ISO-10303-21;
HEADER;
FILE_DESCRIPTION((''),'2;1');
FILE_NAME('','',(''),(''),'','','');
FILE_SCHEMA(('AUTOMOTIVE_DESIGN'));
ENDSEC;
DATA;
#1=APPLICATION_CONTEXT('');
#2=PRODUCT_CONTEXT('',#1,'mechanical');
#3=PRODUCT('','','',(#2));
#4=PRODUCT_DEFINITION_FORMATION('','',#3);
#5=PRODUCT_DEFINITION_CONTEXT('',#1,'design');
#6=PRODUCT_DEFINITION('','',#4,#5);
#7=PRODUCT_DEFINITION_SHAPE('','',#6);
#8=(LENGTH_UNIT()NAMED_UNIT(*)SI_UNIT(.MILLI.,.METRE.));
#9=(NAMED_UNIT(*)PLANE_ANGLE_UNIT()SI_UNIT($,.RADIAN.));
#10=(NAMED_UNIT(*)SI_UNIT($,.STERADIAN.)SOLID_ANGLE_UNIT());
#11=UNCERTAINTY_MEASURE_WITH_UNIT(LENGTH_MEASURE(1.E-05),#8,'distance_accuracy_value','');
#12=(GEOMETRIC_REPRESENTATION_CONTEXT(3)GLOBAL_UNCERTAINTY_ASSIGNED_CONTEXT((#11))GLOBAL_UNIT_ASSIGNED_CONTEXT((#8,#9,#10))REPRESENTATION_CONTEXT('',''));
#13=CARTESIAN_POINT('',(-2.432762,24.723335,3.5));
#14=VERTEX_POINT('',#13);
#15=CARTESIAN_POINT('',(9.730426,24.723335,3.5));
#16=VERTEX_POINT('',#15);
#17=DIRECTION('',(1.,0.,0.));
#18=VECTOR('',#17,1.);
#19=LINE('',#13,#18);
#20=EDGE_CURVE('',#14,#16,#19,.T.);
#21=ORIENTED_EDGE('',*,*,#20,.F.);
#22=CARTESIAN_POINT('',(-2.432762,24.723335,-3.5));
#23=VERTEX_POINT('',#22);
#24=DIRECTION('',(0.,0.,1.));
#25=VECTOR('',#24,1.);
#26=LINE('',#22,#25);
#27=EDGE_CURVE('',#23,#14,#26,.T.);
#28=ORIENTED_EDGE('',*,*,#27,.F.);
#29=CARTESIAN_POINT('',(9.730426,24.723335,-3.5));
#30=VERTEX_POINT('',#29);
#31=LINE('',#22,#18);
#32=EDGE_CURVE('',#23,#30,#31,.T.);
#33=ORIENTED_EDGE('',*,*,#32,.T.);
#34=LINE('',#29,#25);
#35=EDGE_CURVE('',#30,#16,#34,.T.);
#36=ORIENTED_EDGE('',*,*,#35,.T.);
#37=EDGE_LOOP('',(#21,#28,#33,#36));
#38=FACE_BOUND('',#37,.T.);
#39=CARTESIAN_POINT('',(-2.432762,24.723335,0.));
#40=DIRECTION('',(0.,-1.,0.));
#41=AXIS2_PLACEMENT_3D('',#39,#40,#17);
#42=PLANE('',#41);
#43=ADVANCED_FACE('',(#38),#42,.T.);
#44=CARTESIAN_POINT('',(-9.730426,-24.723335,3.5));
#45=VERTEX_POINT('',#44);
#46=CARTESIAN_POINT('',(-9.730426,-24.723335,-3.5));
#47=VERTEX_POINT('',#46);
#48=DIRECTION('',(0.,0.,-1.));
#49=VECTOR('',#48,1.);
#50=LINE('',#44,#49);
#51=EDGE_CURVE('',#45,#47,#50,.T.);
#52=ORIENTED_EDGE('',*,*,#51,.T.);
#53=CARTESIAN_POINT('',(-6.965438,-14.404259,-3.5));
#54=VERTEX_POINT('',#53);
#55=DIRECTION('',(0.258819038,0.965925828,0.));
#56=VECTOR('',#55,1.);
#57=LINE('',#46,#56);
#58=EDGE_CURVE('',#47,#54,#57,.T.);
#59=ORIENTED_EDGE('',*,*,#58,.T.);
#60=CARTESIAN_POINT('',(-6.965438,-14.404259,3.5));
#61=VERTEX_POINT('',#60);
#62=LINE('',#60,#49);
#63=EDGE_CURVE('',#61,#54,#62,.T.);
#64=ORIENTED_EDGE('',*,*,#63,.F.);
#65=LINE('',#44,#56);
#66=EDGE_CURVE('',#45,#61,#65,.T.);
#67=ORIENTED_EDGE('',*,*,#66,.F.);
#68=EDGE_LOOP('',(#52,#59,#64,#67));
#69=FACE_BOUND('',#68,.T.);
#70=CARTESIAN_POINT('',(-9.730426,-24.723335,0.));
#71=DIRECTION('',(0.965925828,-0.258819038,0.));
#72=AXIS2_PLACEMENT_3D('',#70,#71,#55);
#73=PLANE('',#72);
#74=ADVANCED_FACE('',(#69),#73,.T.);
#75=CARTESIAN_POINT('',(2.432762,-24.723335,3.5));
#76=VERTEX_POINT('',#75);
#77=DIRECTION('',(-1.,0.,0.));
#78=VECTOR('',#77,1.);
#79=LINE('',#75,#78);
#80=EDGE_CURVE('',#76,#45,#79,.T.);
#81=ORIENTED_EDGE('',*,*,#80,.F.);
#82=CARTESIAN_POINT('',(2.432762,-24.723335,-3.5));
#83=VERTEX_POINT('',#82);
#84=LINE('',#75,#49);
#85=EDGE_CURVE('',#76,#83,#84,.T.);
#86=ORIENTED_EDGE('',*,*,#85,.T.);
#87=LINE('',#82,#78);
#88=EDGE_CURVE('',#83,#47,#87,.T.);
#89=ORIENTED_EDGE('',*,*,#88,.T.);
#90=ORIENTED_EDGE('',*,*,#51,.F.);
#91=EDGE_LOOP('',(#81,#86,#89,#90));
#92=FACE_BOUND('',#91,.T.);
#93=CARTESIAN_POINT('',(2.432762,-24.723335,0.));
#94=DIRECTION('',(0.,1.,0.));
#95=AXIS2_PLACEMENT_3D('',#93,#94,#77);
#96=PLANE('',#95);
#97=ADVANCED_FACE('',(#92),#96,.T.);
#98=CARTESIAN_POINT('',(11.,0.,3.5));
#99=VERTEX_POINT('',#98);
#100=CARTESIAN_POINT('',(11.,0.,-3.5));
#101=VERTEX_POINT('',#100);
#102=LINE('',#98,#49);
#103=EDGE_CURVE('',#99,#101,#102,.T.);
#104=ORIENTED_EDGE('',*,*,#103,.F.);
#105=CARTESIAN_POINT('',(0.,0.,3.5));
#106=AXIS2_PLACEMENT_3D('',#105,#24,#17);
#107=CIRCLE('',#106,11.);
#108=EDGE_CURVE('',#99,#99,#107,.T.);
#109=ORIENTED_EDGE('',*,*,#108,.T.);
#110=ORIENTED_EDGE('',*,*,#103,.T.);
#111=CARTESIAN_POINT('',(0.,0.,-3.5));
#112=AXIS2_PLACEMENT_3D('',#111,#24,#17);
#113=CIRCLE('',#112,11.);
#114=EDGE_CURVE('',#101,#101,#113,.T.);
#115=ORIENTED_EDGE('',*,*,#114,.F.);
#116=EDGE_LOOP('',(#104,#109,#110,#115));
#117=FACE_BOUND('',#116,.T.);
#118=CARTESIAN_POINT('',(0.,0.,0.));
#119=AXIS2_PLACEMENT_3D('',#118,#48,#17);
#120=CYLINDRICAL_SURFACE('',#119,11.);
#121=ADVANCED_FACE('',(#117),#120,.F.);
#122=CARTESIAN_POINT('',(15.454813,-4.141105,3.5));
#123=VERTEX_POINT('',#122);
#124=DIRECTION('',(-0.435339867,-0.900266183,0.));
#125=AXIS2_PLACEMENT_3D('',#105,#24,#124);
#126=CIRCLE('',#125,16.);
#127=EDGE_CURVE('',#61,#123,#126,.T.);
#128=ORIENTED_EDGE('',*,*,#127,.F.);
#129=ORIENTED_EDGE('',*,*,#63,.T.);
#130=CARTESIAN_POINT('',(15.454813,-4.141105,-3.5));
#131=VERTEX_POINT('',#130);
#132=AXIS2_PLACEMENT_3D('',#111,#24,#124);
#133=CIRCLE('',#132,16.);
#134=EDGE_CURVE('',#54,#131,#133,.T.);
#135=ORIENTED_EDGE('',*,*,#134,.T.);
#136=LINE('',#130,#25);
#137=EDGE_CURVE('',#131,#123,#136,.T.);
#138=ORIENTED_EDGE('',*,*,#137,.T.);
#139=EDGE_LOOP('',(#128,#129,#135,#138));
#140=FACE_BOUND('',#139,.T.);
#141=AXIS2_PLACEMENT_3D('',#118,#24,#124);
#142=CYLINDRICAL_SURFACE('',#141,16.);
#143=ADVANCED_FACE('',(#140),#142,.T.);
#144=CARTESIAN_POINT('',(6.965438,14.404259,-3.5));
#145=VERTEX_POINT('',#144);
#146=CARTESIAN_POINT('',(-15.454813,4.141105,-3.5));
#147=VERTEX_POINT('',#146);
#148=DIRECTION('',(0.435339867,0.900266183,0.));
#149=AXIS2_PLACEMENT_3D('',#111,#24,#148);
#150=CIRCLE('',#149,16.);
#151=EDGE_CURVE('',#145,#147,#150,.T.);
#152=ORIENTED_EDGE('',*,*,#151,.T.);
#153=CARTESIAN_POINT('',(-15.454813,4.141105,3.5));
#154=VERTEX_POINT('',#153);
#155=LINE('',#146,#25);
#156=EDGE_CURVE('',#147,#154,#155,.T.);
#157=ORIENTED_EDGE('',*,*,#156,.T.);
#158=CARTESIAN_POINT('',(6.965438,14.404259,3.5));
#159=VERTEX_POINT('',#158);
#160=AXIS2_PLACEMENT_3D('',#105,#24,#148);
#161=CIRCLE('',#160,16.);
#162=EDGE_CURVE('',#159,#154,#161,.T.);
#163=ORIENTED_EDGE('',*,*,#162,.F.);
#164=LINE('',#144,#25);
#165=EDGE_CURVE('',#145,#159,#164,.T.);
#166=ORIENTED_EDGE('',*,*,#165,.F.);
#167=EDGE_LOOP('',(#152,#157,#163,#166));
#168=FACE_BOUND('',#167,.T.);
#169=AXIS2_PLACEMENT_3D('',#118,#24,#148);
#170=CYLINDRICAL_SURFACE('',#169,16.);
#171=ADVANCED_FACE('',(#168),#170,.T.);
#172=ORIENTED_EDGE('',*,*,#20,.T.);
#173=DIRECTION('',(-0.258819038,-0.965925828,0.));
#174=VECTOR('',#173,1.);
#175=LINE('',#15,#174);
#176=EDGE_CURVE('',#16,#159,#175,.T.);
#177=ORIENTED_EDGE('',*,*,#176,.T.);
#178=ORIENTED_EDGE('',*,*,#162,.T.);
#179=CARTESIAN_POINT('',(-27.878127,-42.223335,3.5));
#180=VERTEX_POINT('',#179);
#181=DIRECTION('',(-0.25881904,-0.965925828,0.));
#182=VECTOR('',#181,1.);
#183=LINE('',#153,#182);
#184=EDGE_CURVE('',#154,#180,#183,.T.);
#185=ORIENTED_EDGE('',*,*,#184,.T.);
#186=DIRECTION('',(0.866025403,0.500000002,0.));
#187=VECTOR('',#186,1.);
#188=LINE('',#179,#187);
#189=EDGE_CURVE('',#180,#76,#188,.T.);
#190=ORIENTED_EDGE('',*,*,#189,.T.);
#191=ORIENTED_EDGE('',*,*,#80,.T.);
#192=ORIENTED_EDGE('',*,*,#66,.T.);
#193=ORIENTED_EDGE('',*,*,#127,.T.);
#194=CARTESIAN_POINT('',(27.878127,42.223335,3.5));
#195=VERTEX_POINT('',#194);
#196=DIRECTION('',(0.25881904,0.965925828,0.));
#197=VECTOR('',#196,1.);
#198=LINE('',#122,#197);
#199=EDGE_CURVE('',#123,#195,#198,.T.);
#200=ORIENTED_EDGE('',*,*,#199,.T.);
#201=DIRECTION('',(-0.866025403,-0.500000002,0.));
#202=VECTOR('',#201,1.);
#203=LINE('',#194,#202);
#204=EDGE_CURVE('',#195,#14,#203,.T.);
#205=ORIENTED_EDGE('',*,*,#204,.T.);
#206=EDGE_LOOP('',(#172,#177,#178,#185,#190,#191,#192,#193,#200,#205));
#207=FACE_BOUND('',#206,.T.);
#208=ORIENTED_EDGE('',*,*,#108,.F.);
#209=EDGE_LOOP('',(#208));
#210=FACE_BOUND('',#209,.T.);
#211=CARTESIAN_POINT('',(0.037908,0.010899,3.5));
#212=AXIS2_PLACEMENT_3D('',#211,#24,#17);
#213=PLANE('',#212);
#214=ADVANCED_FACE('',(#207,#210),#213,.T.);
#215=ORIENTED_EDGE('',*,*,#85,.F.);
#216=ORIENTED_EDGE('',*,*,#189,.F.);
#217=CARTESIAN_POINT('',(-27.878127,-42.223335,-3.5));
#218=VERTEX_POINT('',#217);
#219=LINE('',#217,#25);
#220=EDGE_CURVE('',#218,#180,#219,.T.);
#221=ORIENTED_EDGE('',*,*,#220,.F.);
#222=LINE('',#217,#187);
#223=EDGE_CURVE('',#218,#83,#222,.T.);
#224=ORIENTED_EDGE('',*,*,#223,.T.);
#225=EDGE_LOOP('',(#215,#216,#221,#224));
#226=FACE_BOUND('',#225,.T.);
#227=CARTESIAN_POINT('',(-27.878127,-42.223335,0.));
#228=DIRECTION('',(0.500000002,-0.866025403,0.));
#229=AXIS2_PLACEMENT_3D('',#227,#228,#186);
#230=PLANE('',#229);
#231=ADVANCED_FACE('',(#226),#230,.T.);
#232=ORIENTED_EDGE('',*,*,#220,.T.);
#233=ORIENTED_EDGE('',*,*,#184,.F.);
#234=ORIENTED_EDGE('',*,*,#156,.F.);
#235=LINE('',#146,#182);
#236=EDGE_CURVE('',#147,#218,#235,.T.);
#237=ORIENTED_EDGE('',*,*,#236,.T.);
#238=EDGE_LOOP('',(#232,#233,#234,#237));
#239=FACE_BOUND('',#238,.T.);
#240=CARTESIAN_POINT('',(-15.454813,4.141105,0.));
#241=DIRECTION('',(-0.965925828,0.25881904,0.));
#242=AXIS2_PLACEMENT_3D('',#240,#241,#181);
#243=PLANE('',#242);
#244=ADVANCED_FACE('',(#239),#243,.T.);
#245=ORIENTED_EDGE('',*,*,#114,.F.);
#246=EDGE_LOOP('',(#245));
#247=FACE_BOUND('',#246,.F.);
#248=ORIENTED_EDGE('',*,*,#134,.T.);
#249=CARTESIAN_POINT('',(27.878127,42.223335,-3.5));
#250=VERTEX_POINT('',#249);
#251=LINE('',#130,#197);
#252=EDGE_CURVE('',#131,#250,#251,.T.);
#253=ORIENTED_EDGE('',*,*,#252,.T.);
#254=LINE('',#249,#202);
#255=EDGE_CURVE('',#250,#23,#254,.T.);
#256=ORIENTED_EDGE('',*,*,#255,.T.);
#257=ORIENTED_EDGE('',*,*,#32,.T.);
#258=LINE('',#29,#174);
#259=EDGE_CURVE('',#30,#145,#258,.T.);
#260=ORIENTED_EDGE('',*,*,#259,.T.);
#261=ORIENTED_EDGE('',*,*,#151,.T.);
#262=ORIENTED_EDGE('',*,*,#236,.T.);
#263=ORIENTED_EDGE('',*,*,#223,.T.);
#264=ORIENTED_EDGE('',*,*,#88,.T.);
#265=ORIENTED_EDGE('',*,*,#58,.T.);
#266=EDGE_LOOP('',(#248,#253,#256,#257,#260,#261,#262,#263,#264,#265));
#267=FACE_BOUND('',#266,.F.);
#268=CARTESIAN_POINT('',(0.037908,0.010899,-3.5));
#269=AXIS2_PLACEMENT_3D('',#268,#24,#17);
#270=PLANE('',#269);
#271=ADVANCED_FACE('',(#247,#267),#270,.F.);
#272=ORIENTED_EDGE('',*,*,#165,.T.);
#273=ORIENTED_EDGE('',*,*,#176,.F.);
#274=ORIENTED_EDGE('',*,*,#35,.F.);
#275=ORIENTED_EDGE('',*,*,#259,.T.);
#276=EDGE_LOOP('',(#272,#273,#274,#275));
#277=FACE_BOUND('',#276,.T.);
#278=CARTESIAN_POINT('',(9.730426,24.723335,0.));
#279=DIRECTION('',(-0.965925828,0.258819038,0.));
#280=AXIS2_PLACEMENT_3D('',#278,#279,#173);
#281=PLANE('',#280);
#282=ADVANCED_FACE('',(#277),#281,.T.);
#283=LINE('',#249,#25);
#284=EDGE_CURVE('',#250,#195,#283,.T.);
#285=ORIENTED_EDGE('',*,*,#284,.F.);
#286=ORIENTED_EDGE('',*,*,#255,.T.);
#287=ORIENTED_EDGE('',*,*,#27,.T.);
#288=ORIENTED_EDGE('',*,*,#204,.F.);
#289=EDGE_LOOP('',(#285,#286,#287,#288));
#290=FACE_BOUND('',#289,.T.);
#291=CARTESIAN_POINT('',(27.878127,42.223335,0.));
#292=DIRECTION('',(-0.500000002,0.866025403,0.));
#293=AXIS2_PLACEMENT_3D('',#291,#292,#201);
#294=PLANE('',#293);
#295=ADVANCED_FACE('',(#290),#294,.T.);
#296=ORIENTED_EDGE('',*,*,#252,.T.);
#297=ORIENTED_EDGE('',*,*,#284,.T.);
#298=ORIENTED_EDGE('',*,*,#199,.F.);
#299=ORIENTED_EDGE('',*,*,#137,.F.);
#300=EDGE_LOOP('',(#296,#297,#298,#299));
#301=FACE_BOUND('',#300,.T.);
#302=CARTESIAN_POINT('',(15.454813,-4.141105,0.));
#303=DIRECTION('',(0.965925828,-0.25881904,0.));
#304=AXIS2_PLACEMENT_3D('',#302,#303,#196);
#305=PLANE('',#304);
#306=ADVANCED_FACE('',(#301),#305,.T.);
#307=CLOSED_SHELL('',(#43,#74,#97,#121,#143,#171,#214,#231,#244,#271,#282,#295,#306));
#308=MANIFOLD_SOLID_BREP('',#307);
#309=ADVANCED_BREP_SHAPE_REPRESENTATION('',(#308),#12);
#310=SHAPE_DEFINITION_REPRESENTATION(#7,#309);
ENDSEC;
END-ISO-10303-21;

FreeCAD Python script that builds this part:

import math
import FreeCAD as App
import Part
import Sketcher
from FreeCAD import Vector
Q = App.Units.Quantity

doc = App.newDocument("Part")
body = doc.addObject("PartDesign::Body", "Body")

sketch1 = doc.addObject("Sketcher::SketchObject", "Sketch")
body.addObject(sketch1)
sketch1.AttachmentSupport = (doc.XY_Plane, [""])
sketch1.MapMode = "FlatFace"
sketch1.addGeometry([
    Part.ArcOfCircle(Part.Circle(Vector(0, 0, 0), Vector(0, 0, 1), 16), math.radians(-116), math.radians(-15)),
    Part.LineSegment(Vector(15, -4, 0), Vector(28, 42, 0)),
    Part.LineSegment(Vector(28, 42, 0), Vector(-2, 25, 0)),
    Part.LineSegment(Vector(-2, 25, 0), Vector(10, 25, 0)),
    Part.LineSegment(Vector(10, 25, 0), Vector(7, 14, 0)),
    Part.ArcOfCircle(Part.Circle(Vector(0, 0, 0), Vector(0, 0, 1), 16), math.radians(64), math.radians(165)),
    Part.LineSegment(Vector(-15, 4, 0), Vector(-28, -42, 0)),
    Part.LineSegment(Vector(-28, -42, 0), Vector(2, -25, 0)),
    Part.LineSegment(Vector(2, -25, 0), Vector(-10, -25, 0)),
    Part.LineSegment(Vector(-10, -25, 0), Vector(-7, -14, 0)),
    Part.Circle(Vector(0, 0, 0), Vector(0, 0, 1), 11),
], False)
sketch1.addConstraint([
    Sketcher.Constraint("Tangent", 0, 2, 1, 1),
    Sketcher.Constraint("Coincident", 1, 2, 2, 1),
    Sketcher.Constraint("Coincident", 2, 2, 3, 1),
    Sketcher.Constraint("Coincident", 3, 2, 4, 1),
    Sketcher.Constraint("Coincident", 4, 2, 5, 1),
    Sketcher.Constraint("Tangent", 5, 2, 6, 1),
    Sketcher.Constraint("Coincident", 6, 2, 7, 1),
    Sketcher.Constraint("Coincident", 7, 2, 8, 1),
    Sketcher.Constraint("Coincident", 8, 2, 9, 1),
    Sketcher.Constraint("Coincident", 9, 2, 0, 1),
    Sketcher.Constraint("Horizontal", 3),
    Sketcher.Constraint("Horizontal", 8),
    Sketcher.Constraint("Coincident", 0, 3, -1, 1),
    Sketcher.Constraint("Coincident", 5, 3, -1, 1),
    Sketcher.Constraint("Coincident", 10, 3, -1, 1),
    Sketcher.Constraint("Equal", 0, 5),
    Sketcher.Constraint("Symmetric", 1, 2, 6, 2, -1, 1),
    Sketcher.Constraint("Symmetric", 2, 2, 7, 2, -1, 1),
    Sketcher.Constraint("Parallel", 1, 4),
    Sketcher.Constraint("Parallel", 6, 9),
    Sketcher.Constraint("Equal", 3, 8),
    Sketcher.Constraint("Diameter", 10, Q("22 mm")),
    Sketcher.Constraint("Radius", 0, Q("16 mm")),
    Sketcher.Constraint("Angle", 1, Q("75 deg")),
    Sketcher.Constraint("Angle", 2, Q("-150 deg")),
    Sketcher.Constraint("Distance", 1, Q("48 mm")),
    Sketcher.Constraint("Distance", 2, Q("35 mm")),
    Sketcher.Constraint("DistanceX", 3, 2, 1, 2, Q("18.147701 mm")),
])
pad1 = doc.addObject("PartDesign::Pad", "Pad")
body.addObject(pad1)
pad1.Profile = sketch1
pad1.Length = 7
pad1.Midplane = True

doc.recompute()
